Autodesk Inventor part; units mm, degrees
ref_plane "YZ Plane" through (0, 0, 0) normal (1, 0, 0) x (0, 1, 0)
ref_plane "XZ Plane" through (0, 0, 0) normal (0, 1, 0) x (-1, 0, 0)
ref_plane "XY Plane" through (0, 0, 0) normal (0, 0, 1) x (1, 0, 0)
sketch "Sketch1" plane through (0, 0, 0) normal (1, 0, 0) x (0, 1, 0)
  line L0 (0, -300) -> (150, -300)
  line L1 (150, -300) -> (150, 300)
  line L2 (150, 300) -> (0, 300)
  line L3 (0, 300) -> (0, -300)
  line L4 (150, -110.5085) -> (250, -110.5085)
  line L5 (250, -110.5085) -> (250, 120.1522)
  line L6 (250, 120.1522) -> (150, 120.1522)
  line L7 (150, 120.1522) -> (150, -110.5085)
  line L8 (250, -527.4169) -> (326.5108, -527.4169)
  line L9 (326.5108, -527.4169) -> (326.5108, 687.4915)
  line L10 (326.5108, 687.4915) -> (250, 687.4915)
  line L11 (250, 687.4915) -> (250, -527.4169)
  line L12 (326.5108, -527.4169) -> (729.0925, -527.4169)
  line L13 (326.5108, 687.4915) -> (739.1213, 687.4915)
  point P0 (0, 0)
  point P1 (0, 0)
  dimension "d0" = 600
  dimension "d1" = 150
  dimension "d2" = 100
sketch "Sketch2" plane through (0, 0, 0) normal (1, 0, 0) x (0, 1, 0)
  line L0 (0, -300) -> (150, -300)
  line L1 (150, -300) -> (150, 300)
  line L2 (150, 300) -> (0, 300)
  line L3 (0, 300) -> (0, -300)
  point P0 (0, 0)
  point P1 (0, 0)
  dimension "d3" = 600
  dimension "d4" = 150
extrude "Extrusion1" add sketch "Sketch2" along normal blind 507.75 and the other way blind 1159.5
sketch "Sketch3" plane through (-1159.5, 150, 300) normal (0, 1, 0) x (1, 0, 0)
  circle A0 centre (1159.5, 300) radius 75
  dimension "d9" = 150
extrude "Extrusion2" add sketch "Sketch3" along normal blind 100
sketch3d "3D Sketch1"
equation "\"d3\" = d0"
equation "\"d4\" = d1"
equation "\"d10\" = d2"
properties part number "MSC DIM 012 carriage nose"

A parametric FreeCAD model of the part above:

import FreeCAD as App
import Part
import Sketcher


def add_polygon(sketch, points):
    """Adds a closed chain of lines whose ends are joined by coincident constraints."""
    first, n = sketch.GeometryCount, len(points)
    for a, b in zip(points, points[1:] + points[:1]):
        sketch.addGeometry(Part.LineSegment(App.Vector(*a, 0), App.Vector(*b, 0)), False)
    for i in range(n):
        sketch.addConstraint(Sketcher.Constraint("Coincident", first + i, 2, first + (i + 1) % n, 1))

doc = App.newDocument("Part")
body = doc.addObject("PartDesign::Body", "Body")

sketch1 = body.newObject("Sketcher::SketchObject", "Sketch")
sketch1.AttachmentSupport = (doc.getObject("YZ_Plane"), [""])
sketch1.MapMode = "FlatFace"
add_polygon(sketch1, [(0, 300), (0, -300), (150, -300), (150, 300)])
sketch1.addConstraint([
    Sketcher.Constraint("Vertical", 0),
    Sketcher.Constraint("Horizontal", 1),
    Sketcher.Constraint("Vertical", 2),
    Sketcher.Constraint("Horizontal", 3),
    Sketcher.Constraint("Symmetric", 0, 2, 3, 2, -1, 1),
    Sketcher.Constraint("DistanceX", 1, 1, 1, 2, 150.0),
    Sketcher.Constraint("DistanceY", 0, 2, 0, 1, 600.0),
])
pad1 = body.newObject("PartDesign::Pad", "Pad")
pad1.Profile = sketch1
pad1.Type = "TwoLengths"
pad1.Length = 507.75
pad1.Length2 = 1159.5

sketch2 = body.newObject("Sketcher::SketchObject", "Sketch001")
sketch2.AttachmentSupport = (doc.getObject("XZ_Plane"), [""])
sketch2.MapMode = "FlatFace"
sketch2.AttachmentOffset = App.Placement(App.Vector(0, 0, -150), App.Rotation())
sketch2.addGeometry(Part.Circle(App.Vector(0, 0, 0), App.Vector(0, 0, 1), 75), False)
sketch2.addConstraint([
    Sketcher.Constraint("Coincident", 0, 3, -1, 1),
    Sketcher.Constraint("Diameter", 0, 150.0),
])
pad2 = body.newObject("PartDesign::Pad", "Pad001")
pad2.Profile = sketch2
pad2.Length = 100
pad2.Reversed = True

doc.recompute()
